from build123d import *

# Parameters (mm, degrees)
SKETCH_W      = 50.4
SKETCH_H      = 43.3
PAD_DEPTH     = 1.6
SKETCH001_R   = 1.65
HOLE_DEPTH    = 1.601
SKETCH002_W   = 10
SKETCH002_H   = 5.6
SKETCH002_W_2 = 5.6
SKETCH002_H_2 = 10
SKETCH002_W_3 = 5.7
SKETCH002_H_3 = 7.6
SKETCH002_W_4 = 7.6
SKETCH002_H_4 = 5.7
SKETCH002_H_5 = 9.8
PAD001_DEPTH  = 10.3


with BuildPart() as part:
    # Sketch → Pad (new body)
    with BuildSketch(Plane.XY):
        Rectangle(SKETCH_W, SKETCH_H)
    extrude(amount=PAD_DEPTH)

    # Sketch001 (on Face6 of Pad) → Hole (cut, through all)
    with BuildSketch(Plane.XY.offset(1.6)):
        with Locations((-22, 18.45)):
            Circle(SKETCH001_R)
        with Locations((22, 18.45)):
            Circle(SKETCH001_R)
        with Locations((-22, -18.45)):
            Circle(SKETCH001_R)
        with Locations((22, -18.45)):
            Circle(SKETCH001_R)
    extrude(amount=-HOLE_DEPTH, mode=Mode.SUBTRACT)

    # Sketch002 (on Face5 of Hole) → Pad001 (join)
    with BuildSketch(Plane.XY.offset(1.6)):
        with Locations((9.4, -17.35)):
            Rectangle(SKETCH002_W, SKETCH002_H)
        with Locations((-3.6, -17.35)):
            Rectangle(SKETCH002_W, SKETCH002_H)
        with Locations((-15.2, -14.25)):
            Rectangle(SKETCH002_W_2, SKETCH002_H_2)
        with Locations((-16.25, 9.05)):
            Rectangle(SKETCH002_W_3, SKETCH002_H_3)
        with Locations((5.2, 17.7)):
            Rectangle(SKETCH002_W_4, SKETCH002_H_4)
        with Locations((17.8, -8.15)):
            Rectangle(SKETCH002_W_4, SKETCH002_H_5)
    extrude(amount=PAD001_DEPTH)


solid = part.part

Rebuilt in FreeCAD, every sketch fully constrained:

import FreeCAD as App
import Part
import Sketcher

V = App.Vector

doc = App.newDocument("Part")
body = doc.addObject("PartDesign::Body", "Body")

# Sketch on XY plane
sketch1 = doc.addObject("Sketcher::SketchObject", "Sketch")
body.addObject(sketch1)
sketch1.AttachmentSupport = (doc.XY_Plane, [""])
sketch1.MapMode = "FlatFace"
sketch1.addGeometry([
    Part.LineSegment(V(-25, 22, 0), V(-25, -22, 0)),
    Part.LineSegment(V(-25, -22, 0), V(25, -22, 0)),
    Part.LineSegment(V(25, -22, 0), V(25, 22, 0)),
    Part.LineSegment(V(25, 22, 0), V(-25, 22, 0)),
], False)
sketch1.addConstraint([
    Sketcher.Constraint("Coincident", 0, 2, 1, 1),
    Sketcher.Constraint("Coincident", 1, 2, 2, 1),
    Sketcher.Constraint("Coincident", 2, 2, 3, 1),
    Sketcher.Constraint("Coincident", 3, 2, 0, 1),
    Sketcher.Constraint("Vertical", 0),
    Sketcher.Constraint("Horizontal", 1),
    Sketcher.Constraint("Vertical", 2),
    Sketcher.Constraint("Horizontal", 3),
    Sketcher.Constraint("Symmetric", 0, 2, 2, 2, -1, 1),
    Sketcher.Constraint("DistanceX", 1, 1, 1, 2, 50.4),
    Sketcher.Constraint("DistanceY", 0, 2, 0, 1, 43.3),
])
pad1 = doc.addObject("PartDesign::Pad", "Pad")
body.addObject(pad1)
pad1.Profile = sketch1
pad1.Length = 1.6

# Sketch on XY plane
sketch2 = doc.addObject("Sketcher::SketchObject", "Sketch001")
body.addObject(sketch2)
sketch2.AttachmentSupport = (doc.XY_Plane, [""])
sketch2.MapMode = "FlatFace"
sketch2.AttachmentOffset = App.Placement(V(0, 0, 1.6), App.Rotation())
sketch2.addGeometry([
    Part.Circle(V(-22, 18.4, 0), V(0, 0, 1), 1.6),
    Part.Circle(V(22, 18.4, 0), V(0, 0, 1), 1.6),
    Part.Circle(V(-22, -18.4, 0), V(0, 0, 1), 1.6),
    Part.Circle(V(22, -18.4, 0), V(0, 0, 1), 1.6),
], False)
sketch2.addConstraint([
    Sketcher.Constraint("Equal", 0, 1),
    Sketcher.Constraint("Equal", 1, 2),
    Sketcher.Constraint("Equal", 2, 3),
    Sketcher.Constraint("Symmetric", 1, 3, 2, 3, -1, 1),
    Sketcher.Constraint("Symmetric", 0, 3, 3, 3, -1, 1),
    Sketcher.Constraint("Symmetric", 0, 3, 1, 3, -2),
    Sketcher.Constraint("Diameter", 0, 3.3),
    Sketcher.Constraint("DistanceX", 0, 3, -1, 1, 22.0),
    Sketcher.Constraint("DistanceY", 2, 3, 0, 3, 36.9),
])
pocket1 = doc.addObject("PartDesign::Pocket", "Pocket")
body.addObject(pocket1)
pocket1.Profile = sketch2
pocket1.Type = "ThroughAll"

# Sketch on XY plane
sketch3 = doc.addObject("Sketcher::SketchObject", "Sketch002")
body.addObject(sketch3)
sketch3.AttachmentSupport = (doc.XY_Plane, [""])
sketch3.MapMode = "FlatFace"
sketch3.AttachmentOffset = App.Placement(V(0, 0, 1.6), App.Rotation())
sketch3.addGeometry([
    Part.LineSegment(V(4, -15, 0), V(4, -20, 0)),  # 0
    Part.LineSegment(V(4, -20, 0), V(14, -20, 0)),  # 1
    Part.LineSegment(V(14, -20, 0), V(14, -15, 0)),  # 2
    Part.LineSegment(V(14, -15, 0), V(4, -15, 0)),  # 3
    Part.LineSegment(V(-9, -15, 0), V(-9, -20, 0)),  # 4
    Part.LineSegment(V(-9, -20, 0), V(1, -20, 0)),  # 5
    Part.LineSegment(V(1, -20, 0), V(1, -15, 0)),  # 6
    Part.LineSegment(V(1, -15, 0), V(-9, -15, 0)),  # 7
    Part.LineSegment(V(-18, -9, 0), V(-18, -19, 0)),  # 8
    Part.LineSegment(V(-18, -19, 0), V(-12, -19, 0)),  # 9
    Part.LineSegment(V(-12, -19, 0), V(-12, -9, 0)),  # 10
    Part.LineSegment(V(-12, -9, 0), V(-18, -9, 0)),  # 11
    Part.LineSegment(V(-19, 13, 0), V(-19, 5, 0)),  # 12
    Part.LineSegment(V(-19, 5, 0), V(-13, 5, 0)),  # 13
    Part.LineSegment(V(-13, 5, 0), V(-13, 13, 0)),  # 14
    Part.LineSegment(V(-13, 13, 0), V(-19, 13, 0)),  # 15
    Part.LineSegment(V(1, 21, 0), V(1, 15, 0)),  # 16
    Part.LineSegment(V(1, 15, 0), V(9, 15, 0)),  # 17
    Part.LineSegment(V(9, 15, 0), V(9, 21, 0)),  # 18
    Part.LineSegment(V(9, 21, 0), V(1, 21, 0)),  # 19
    Part.LineSegment(V(14, -3, 0), V(14, -13, 0)),  # 20
    Part.LineSegment(V(14, -13, 0), V(22, -13, 0)),  # 21
    Part.LineSegment(V(22, -13, 0), V(22, -3, 0)),  # 22
    Part.LineSegment(V(22, -3, 0), V(14, -3, 0)),  # 23
], False)
sketch3.addConstraint([
    Sketcher.Constraint("Coincident", 0, 2, 1, 1),
    Sketcher.Constraint("Coincident", 1, 2, 2, 1),
    Sketcher.Constraint("Coincident", 2, 2, 3, 1),
    Sketcher.Constraint("Coincident", 3, 2, 0, 1),
    Sketcher.Constraint("Coincident", 4, 2, 5, 1),
    Sketcher.Constraint("Coincident", 5, 2, 6, 1),
    Sketcher.Constraint("Coincident", 6, 2, 7, 1),
    Sketcher.Constraint("Coincident", 7, 2, 4, 1),
    Sketcher.Constraint("Coincident", 8, 2, 9, 1),
    Sketcher.Constraint("Coincident", 9, 2, 10, 1),
    Sketcher.Constraint("Coincident", 10, 2, 11, 1),
    Sketcher.Constraint("Coincident", 11, 2, 8, 1),
    Sketcher.Constraint("Coincident", 12, 2, 13, 1),
    Sketcher.Constraint("Coincident", 13, 2, 14, 1),
    Sketcher.Constraint("Coincident", 14, 2, 15, 1),
    Sketcher.Constraint("Coincident", 15, 2, 12, 1),
    Sketcher.Constraint("Coincident", 16, 2, 17, 1),
    Sketcher.Constraint("Coincident", 17, 2, 18, 1),
    Sketcher.Constraint("Coincident", 18, 2, 19, 1),
    Sketcher.Constraint("Coincident", 19, 2, 16, 1),
    Sketcher.Constraint("Coincident", 20, 2, 21, 1),
    Sketcher.Constraint("Coincident", 21, 2, 22, 1),
    Sketcher.Constraint("Coincident", 22, 2, 23, 1),
    Sketcher.Constraint("Coincident", 23, 2, 20, 1),
    Sketcher.Constraint("Vertical", 0),
    Sketcher.Constraint("Horizontal", 1),
    Sketcher.Constraint("Vertical", 2),
    Sketcher.Constraint("Horizontal", 3),
    Sketcher.Constraint("Vertical", 4),
    Sketcher.Constraint("Horizontal", 5),
    Sketcher.Constraint("Vertical", 6),
    Sketcher.Constraint("Horizontal", 7),
    Sketcher.Constraint("Vertical", 8),
    Sketcher.Constraint("Horizontal", 9),
    Sketcher.Constraint("Vertical", 10),
    Sketcher.Constraint("Horizontal", 11),
    Sketcher.Constraint("Vertical", 12),
    Sketcher.Constraint("Horizontal", 13),
    Sketcher.Constraint("Vertical", 14),
    Sketcher.Constraint("Horizontal", 15),
    Sketcher.Constraint("Vertical", 16),
    Sketcher.Constraint("Horizontal", 17),
    Sketcher.Constraint("Vertical", 18),
    Sketcher.Constraint("Horizontal", 19),
    Sketcher.Constraint("Vertical", 20),
    Sketcher.Constraint("Horizontal", 21),
    Sketcher.Constraint("Vertical", 22),
    Sketcher.Constraint("Horizontal", 23),
    Sketcher.Constraint("Horizontal", 1, 2, 4, 2),
    Sketcher.Constraint("Horizontal", 3, 2, 6, 2),
    Sketcher.Constraint("Vertical", 6, 2, 16, 2),
    Sketcher.Constraint("Equal", 3, 5),
    Sketcher.Constraint("Equal", 19, 21),
    Sketcher.Constraint("Equal", 11, 0),
    Sketcher.Constraint("Equal", 7, 8),
    Sketcher.Constraint("Equal", 23, 12),
    Sketcher.Constraint("Equal", 15, 16),
    Sketcher.Constraint("DistanceX", 1, 1, 1, 2, 10.0),
    Sketcher.Constraint("DistanceX", 9, 1, 9, 2, 5.6),
    Sketcher.Constraint("DistanceX", 13, 1, 13, 2, 5.7),
    Sketcher.Constraint("DistanceX", 17, 1, 17, 2, 7.6),
    Sketcher.Constraint("DistanceY", 20, 2, 20, 1, 9.8),
    Sketcher.Constraint("DistanceX", 8, 2, -1, 1, 18.0),
    Sketcher.Constraint("DistanceX", -1, 1, 17, 2, 9.0),
    Sketcher.Constraint("DistanceX", -1, 1, 20, 2, 14.0),
    Sketcher.Constraint("DistanceX", 4, 2, 0, 2, 13.0),
    Sketcher.Constraint("DistanceX", 13, 2, 10, 2, 1.0),
    Sketcher.Constraint("DistanceY", 14, 2, 16, 2, 2.0),
    Sketcher.Constraint("DistanceY", 4, 2, 8, 2, 0.9),
    Sketcher.Constraint("DistanceY", 11, 2, 12, 2, 14.5),
    Sketcher.Constraint("DistanceY", 2, 2, 20, 2, 1.5),
    Sketcher.Constraint("DistanceY", 0, 2, -1, 1, 20.15),
])
pad2 = doc.addObject("PartDesign::Pad", "Pad001")
body.addObject(pad2)
pad2.Profile = sketch3
pad2.Length = 10.3

doc.recompute()
